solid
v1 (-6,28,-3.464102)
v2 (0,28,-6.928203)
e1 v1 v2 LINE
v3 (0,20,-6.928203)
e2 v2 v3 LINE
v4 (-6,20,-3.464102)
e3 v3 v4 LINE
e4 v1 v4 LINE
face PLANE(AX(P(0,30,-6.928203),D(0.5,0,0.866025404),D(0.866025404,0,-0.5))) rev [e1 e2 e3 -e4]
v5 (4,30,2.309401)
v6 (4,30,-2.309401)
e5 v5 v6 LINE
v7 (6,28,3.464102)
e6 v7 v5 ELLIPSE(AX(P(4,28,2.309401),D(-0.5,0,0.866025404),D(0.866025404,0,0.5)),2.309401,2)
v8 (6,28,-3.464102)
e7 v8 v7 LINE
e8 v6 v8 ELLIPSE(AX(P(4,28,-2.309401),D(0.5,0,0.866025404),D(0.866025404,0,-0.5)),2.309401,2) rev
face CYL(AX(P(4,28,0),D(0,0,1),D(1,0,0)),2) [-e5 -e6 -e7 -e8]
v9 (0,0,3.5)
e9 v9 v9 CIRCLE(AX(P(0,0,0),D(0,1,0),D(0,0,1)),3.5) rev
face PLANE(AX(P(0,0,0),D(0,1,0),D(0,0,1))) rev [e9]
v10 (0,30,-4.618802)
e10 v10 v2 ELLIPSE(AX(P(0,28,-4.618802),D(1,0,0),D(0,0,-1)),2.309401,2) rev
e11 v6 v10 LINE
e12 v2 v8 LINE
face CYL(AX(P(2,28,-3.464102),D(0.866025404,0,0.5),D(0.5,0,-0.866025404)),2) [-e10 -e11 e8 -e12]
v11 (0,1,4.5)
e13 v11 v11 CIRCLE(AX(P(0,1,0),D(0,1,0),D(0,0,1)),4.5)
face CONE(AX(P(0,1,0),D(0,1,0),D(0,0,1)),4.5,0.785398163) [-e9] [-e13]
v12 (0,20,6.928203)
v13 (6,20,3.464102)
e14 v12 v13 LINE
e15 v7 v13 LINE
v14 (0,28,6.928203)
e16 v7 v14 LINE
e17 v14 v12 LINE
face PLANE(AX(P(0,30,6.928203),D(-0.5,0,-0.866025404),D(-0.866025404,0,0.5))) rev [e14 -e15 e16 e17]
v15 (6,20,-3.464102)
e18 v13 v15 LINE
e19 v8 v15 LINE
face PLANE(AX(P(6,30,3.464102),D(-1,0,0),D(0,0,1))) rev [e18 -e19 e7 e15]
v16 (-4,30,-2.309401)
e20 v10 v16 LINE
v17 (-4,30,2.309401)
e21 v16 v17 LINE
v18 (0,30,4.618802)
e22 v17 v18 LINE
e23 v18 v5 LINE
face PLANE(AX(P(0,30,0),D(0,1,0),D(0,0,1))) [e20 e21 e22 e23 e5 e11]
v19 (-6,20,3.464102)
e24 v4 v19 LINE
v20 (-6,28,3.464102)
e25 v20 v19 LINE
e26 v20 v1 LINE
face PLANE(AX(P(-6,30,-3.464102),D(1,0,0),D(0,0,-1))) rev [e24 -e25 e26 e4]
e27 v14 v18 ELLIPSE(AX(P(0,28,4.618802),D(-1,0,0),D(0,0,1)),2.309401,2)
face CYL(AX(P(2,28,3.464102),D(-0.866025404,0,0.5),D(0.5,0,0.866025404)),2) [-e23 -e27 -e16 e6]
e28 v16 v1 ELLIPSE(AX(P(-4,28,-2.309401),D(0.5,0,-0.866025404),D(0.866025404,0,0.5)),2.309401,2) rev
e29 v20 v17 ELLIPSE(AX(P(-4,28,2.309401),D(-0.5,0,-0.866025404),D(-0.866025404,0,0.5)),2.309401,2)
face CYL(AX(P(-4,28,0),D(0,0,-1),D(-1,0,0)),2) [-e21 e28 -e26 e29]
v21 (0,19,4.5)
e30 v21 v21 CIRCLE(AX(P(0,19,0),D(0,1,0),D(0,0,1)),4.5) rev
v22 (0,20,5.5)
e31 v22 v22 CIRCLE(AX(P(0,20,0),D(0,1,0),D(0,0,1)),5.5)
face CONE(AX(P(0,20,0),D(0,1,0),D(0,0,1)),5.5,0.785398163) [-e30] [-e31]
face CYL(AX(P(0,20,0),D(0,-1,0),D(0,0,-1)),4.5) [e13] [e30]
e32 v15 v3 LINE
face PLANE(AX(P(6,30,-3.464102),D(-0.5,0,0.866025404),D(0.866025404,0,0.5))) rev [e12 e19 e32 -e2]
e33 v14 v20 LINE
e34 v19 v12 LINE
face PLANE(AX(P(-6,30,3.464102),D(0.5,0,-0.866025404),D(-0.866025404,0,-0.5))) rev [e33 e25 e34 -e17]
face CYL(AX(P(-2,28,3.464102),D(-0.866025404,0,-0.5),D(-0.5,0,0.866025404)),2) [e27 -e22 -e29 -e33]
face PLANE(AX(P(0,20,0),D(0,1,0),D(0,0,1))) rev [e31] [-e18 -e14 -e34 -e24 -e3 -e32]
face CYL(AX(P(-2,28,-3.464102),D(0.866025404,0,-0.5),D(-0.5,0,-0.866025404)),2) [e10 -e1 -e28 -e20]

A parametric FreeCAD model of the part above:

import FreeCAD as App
import Part
import Sketcher
from FreeCAD import Vector
Q = App.Units.Quantity


def edges_at(feature, points):
    """Names of the edges that pass closest to the given points."""
    edges = feature.Shape.Edges
    near = lambda p: min(range(len(edges)), key=lambda i: edges[i].distToShape(Part.Vertex(*p))[0])
    return sorted({f"Edge{near(p) + 1}" for p in points})


def add_polygon(sketch, points):
    """Adds a closed chain of lines whose ends are joined by coincident constraints."""
    first, n = sketch.GeometryCount, len(points)
    for a, b in zip(points, points[1:] + points[:1]):
        sketch.addGeometry(Part.LineSegment(App.Vector(*a, 0), App.Vector(*b, 0)), False)
    for i in range(n):
        sketch.addConstraint(Sketcher.Constraint("Coincident", first + i, 2, first + (i + 1) % n, 1))

doc = App.newDocument("Part")
body = doc.addObject("PartDesign::Body", "Body")

sketch1 = body.newObject("Sketcher::SketchObject", "Sketch")
sketch1.AttachmentSupport = (doc.getObject("XZ_Plane"), [""])
sketch1.MapMode = "FlatFace"
sketch1.addGeometry(Part.Circle(Vector(0, 0, 0), Vector(0, 0, 1), 4.5), False)
sketch1.addConstraint(Sketcher.Constraint("Coincident", 0, 3, -1, 1))
sketch1.addConstraint(Sketcher.Constraint("Diameter", 0, 9.0))
pad1 = body.newObject("PartDesign::Pad", "Pad")
pad1.Profile = sketch1
pad1.Length = 20
pad1.Reversed = True

sketch2 = body.newObject("Sketcher::SketchObject", "Sketch001")
sketch2.AttachmentSupport = (doc.getObject("XZ_Plane"), [""])
sketch2.MapMode = "FlatFace"
sketch2.AttachmentOffset = App.Placement(Vector(0, 0, -20), App.Rotation())
add_polygon(sketch2, [(6, -3.464102), (0, -6.928203), (-6, -3.464102), (-6, 3.464102), (0, 6.928203), (6, 3.464102)])
sketch2.addConstraint(Sketcher.Constraint("Vertical", 2))
sketch2.addConstraint(Sketcher.Constraint("Vertical", 5))
sketch2.addConstraint(Sketcher.Constraint("Symmetric", 0, 2, 3, 2, -1, 1))
sketch2.addConstraint(Sketcher.Constraint("Symmetric", 1, 2, 4, 2, -1, 1))
sketch2.addConstraint(Sketcher.Constraint("PointOnObject", 0, 2, -2))
sketch2.addConstraint(Sketcher.Constraint("Parallel", 0, 3))
sketch2.addConstraint(Sketcher.Constraint("Horizontal", 2, 2, 4, 2))
sketch2.addConstraint(Sketcher.Constraint("Angle", 0, Q("-150 deg")))
sketch2.addConstraint(Sketcher.Constraint("DistanceX", 1, 2, -1, 1, 6.0))
sketch2.addConstraint(Sketcher.Constraint("DistanceY", 1, 2, -1, 1, 3.464102))
pad2 = body.newObject("PartDesign::Pad", "Pad001")
pad2.Profile = sketch2
pad2.Length = 10
pad2.Reversed = True
doc.recompute()

chamfer = body.newObject("PartDesign::Chamfer", "Chamfer")
chamfer.Base = (pad2, edges_at(pad2, [(-4.5, 0, 0), (-4.5, 20, 0)]))
chamfer.Size = 1
doc.recompute()

fillet = body.newObject("PartDesign::Fillet", "Fillet")
fillet.Base = (chamfer, edges_at(chamfer, [
    (6, 30, 0),
    (3, 30, -5.196),
    (-3, 30, -5.196),
    (-6, 30, 0),
    (-3, 30, 5.196),
    (3, 30, 5.196),
]))
fillet.Radius = 2

doc.recompute()
